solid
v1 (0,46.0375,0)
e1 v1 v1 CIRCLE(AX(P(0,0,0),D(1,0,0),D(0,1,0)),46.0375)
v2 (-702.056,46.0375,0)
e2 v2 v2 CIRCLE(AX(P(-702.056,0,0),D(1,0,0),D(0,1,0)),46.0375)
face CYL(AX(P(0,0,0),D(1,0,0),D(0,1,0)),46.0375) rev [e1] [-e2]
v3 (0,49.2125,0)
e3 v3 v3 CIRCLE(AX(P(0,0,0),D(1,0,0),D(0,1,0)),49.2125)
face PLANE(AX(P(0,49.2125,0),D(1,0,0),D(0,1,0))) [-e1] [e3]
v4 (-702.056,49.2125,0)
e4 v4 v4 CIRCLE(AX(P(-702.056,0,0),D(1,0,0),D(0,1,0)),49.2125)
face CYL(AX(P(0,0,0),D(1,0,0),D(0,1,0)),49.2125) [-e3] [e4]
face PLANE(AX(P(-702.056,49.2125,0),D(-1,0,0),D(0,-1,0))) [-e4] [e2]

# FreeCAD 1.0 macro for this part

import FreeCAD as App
import Part
import Sketcher
from FreeCAD import Vector
Q = App.Units.Quantity

doc = App.newDocument("Part")
body = doc.addObject("PartDesign::Body", "Body")

sketch1 = body.newObject("Sketcher::SketchObject", "Sketch")
sketch1.AttachmentSupport = (doc.getObject("XY_Plane"), [""])
sketch1.MapMode = "FlatFace"
sketch1.addGeometry(Part.LineSegment(Vector(-702.1, 49.2, 0), Vector(-702.1, 46, 0)), False)
sketch1.addGeometry(Part.LineSegment(Vector(-702.1, 46, 0), Vector(0, 46, 0)), False)
sketch1.addGeometry(Part.LineSegment(Vector(0, 46, 0), Vector(0, 49.2, 0)), False)
sketch1.addGeometry(Part.LineSegment(Vector(0, 49.2, 0), Vector(-702.1, 49.2, 0)), False)
sketch1.addConstraint(Sketcher.Constraint("Coincident", 0, 2, 1, 1))
sketch1.addConstraint(Sketcher.Constraint("Coincident", 1, 2, 2, 1))
sketch1.addConstraint(Sketcher.Constraint("Coincident", 2, 2, 3, 1))
sketch1.addConstraint(Sketcher.Constraint("Coincident", 3, 2, 0, 1))
sketch1.addConstraint(Sketcher.Constraint("Vertical", 0))
sketch1.addConstraint(Sketcher.Constraint("Horizontal", 1))
sketch1.addConstraint(Sketcher.Constraint("Vertical", 2))
sketch1.addConstraint(Sketcher.Constraint("Horizontal", 3))
sketch1.addConstraint(Sketcher.Constraint("PointOnObject", 1, 2, -2))
sketch1.addConstraint(Sketcher.Constraint("DistanceX", 1, 1, 1, 2, Q("27.64 in")))
sketch1.addConstraint(Sketcher.Constraint("DistanceY", 0, 2, 0, 1, Q("0.125 in")))
sketch1.addConstraint(Sketcher.Constraint("DistanceY", -1, 1, 0, 2, Q("1.8125 in")))
revolution = body.newObject("PartDesign::Revolution", "Revolution")
revolution.Profile = sketch1
revolution.ReferenceAxis = (sketch1, ["H_Axis"])
revolution.Angle = 360

doc.recompute()
